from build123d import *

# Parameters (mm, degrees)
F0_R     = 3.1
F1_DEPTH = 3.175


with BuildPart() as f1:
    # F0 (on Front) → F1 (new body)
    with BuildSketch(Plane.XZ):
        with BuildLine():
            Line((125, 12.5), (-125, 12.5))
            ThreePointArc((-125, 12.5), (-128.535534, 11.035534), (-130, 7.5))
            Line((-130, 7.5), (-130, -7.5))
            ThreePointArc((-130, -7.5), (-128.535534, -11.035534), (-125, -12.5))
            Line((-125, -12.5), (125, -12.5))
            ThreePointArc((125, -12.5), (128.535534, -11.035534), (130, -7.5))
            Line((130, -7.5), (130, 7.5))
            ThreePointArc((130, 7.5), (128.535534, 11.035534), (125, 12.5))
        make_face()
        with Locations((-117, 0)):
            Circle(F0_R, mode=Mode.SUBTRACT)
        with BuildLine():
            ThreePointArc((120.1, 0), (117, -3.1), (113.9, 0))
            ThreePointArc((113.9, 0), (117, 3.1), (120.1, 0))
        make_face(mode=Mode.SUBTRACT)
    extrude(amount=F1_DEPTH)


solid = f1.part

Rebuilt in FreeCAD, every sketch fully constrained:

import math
import FreeCAD as App
import Part
import Sketcher

V = App.Vector
Q = App.Units.Quantity

doc = App.newDocument("Part")
body = doc.addObject("PartDesign::Body", "Body")

# Sketch on XZ plane
sketch1 = body.newObject("Sketcher::SketchObject", "Sketch")
sketch1.AttachmentSupport = (doc.getObject("XZ_Plane"), [""])
sketch1.MapMode = "FlatFace"
sketch1.addGeometry(Part.LineSegment(V(125, 12.5, 0), V(-125, 12.5, 0)), False)
sketch1.addGeometry(Part.ArcOfCircle(Part.Circle(V(-125, 7.5, 0), V(0, 0, 1), 5), math.radians(89.999996), math.radians(180.000004)), False)
sketch1.addGeometry(Part.LineSegment(V(-130, 7.5, 0), V(-130, -7.5, 0)), False)
sketch1.addGeometry(Part.ArcOfCircle(Part.Circle(V(-125, -7.5, 0), V(0, 0, 1), 5), math.radians(179.999996), math.radians(270.000004)), False)
sketch1.addGeometry(Part.LineSegment(V(-125, -12.5, 0), V(125, -12.5, 0)), False)
sketch1.addGeometry(Part.ArcOfCircle(Part.Circle(V(125, -7.5, 0), V(0, 0, 1), 5), math.radians(-90.000004), math.radians(0.000004)), False)
sketch1.addGeometry(Part.LineSegment(V(130, -7.5, 0), V(130, 7.5, 0)), False)
sketch1.addGeometry(Part.ArcOfCircle(Part.Circle(V(125, 7.5, 0), V(0, 0, 1), 5), math.radians(-0.000004), math.radians(90.000004)), False)
sketch1.addGeometry(Part.Circle(V(-117, 0, 0), V(0, 0, 1), 3.1), False)
sketch1.addGeometry(Part.Circle(V(117, 0, 0), V(0, 0, 1), 3.1), False)
sketch1.addConstraint(Sketcher.Constraint("Tangent", 0, 2, 1, 1))
sketch1.addConstraint(Sketcher.Constraint("Tangent", 1, 2, 2, 1))
sketch1.addConstraint(Sketcher.Constraint("Tangent", 2, 2, 3, 1))
sketch1.addConstraint(Sketcher.Constraint("Tangent", 3, 2, 4, 1))
sketch1.addConstraint(Sketcher.Constraint("Tangent", 4, 2, 5, 1))
sketch1.addConstraint(Sketcher.Constraint("Tangent", 5, 2, 6, 1))
sketch1.addConstraint(Sketcher.Constraint("Tangent", 6, 2, 7, 1))
sketch1.addConstraint(Sketcher.Constraint("Tangent", 7, 2, 0, 1))
sketch1.addConstraint(Sketcher.Constraint("Horizontal", 0))
sketch1.addConstraint(Sketcher.Constraint("Vertical", 2))
sketch1.addConstraint(Sketcher.Constraint("Horizontal", 4))
sketch1.addConstraint(Sketcher.Constraint("Vertical", 6))
sketch1.addConstraint(Sketcher.Constraint("Equal", 1, 3))
sketch1.addConstraint(Sketcher.Constraint("Equal", 3, 5))
sketch1.addConstraint(Sketcher.Constraint("Equal", 5, 7))
sketch1.addConstraint(Sketcher.Constraint("Equal", 8, 9))
sketch1.addConstraint(Sketcher.Constraint("Symmetric", 1, 3, 5, 3, -1, 1))
sketch1.addConstraint(Sketcher.Constraint("Symmetric", 8, 3, 9, 3, -1, 1))
sketch1.addConstraint(Sketcher.Constraint("PointOnObject", 8, 3, -1))
sketch1.addConstraint(Sketcher.Constraint("Radius", 1, Q("5 mm")))
sketch1.addConstraint(Sketcher.Constraint("Diameter", 8, Q("6.2 mm")))
sketch1.addConstraint(Sketcher.Constraint("DistanceX", 0, 2, 0, 1, Q("250 mm")))
sketch1.addConstraint(Sketcher.Constraint("DistanceY", 2, 2, 2, 1, Q("15 mm")))
sketch1.addConstraint(Sketcher.Constraint("DistanceX", 8, 3, -1, 1, Q("117 mm")))
pad1 = body.newObject("PartDesign::Pad", "Pad")
pad1.Profile = sketch1
pad1.Length = 3.175

doc.recompute()
